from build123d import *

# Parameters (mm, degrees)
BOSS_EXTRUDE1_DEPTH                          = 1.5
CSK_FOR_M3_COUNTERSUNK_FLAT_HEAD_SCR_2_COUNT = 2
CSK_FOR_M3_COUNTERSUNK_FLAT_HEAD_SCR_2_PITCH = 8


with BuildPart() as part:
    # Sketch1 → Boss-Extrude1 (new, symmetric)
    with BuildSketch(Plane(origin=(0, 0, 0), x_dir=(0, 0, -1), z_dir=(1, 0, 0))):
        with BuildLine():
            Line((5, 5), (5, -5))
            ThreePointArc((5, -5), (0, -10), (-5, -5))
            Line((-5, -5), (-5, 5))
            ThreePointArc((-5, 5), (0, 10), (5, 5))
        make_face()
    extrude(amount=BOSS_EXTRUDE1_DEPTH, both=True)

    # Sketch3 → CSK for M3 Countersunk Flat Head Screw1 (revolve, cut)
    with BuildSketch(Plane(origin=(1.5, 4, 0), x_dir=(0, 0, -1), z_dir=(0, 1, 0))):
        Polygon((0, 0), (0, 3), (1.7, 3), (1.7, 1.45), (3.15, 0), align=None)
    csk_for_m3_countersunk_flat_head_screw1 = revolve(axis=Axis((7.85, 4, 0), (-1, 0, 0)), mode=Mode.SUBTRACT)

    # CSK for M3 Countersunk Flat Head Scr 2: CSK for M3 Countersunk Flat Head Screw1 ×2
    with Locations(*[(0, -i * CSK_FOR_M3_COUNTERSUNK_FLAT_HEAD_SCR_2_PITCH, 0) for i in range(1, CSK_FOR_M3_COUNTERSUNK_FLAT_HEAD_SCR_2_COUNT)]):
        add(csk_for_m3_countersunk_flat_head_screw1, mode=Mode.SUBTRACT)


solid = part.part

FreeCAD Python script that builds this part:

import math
import FreeCAD as App
import Part
import Sketcher
Q = App.Units.Quantity


def add_polygon(sketch, points):
    """Adds a closed chain of lines whose ends are joined by coincident constraints."""
    first, n = sketch.GeometryCount, len(points)
    for a, b in zip(points, points[1:] + points[:1]):
        sketch.addGeometry(Part.LineSegment(App.Vector(*a, 0), App.Vector(*b, 0)), False)
    for i in range(n):
        sketch.addConstraint(Sketcher.Constraint("Coincident", first + i, 2, first + (i + 1) % n, 1))

doc = App.newDocument("Part")
body = doc.addObject("PartDesign::Body", "Body")

sketch1 = body.newObject("Sketcher::SketchObject", "Sketch")
sketch1.AttachmentSupport = (doc.getObject("YZ_Plane"), [""])
sketch1.MapMode = "FlatFace"
sketch1.addGeometry([
    Part.LineSegment(App.Vector(-5, -5, 0), App.Vector(5, -5, 0)),
    Part.ArcOfCircle(Part.Circle(App.Vector(5, 0, 0), App.Vector(0, 0, 1), 5), math.radians(-90), math.radians(90)),
    Part.LineSegment(App.Vector(5, 5, 0), App.Vector(-5, 5, 0)),
    Part.ArcOfCircle(Part.Circle(App.Vector(-5, 0, 0), App.Vector(0, 0, 1), 5), math.radians(90), math.radians(270)),
], False)
sketch1.addConstraint([
    Sketcher.Constraint("Tangent", 0, 2, 1, 1),
    Sketcher.Constraint("Tangent", 1, 2, 2, 1),
    Sketcher.Constraint("Tangent", 2, 2, 3, 1),
    Sketcher.Constraint("Tangent", 3, 2, 0, 1),
    Sketcher.Constraint("Horizontal", 0),
    Sketcher.Constraint("Horizontal", 2),
    Sketcher.Constraint("Symmetric", 1, 3, 3, 3, -1, 1),
    Sketcher.Constraint("Radius", 1, Q("5 mm")),
    Sketcher.Constraint("DistanceX", 0, 1, 0, 2, Q("10 mm")),
])
pad1 = body.newObject("PartDesign::Pad", "Pad")
pad1.Profile = sketch1
pad1.Length = 3
pad1.Midplane = True

sketch2 = body.newObject("Sketcher::SketchObject", "Sketch001")
sketch2.AttachmentSupport = (doc.getObject("XZ_Plane"), [""])
sketch2.MapMode = "FlatFace"
sketch2.AttachmentOffset = App.Placement(App.Vector(0, 0, -4), App.Rotation())
add_polygon(sketch2, [(-1.5, 0), (1.5, 0), (1.5, -3.15), (0.05, -1.7), (-1.5, -1.7)])
sketch2.addConstraint([
    Sketcher.Constraint("Horizontal", 0),
    Sketcher.Constraint("Vertical", 1),
    Sketcher.Constraint("Horizontal", 3),
    Sketcher.Constraint("Vertical", 4),
    Sketcher.Constraint("Symmetric", 0, 2, 4, 2, -1, 1),
    Sketcher.Constraint("DistanceX", 0, 1, 0, 2, Q("3 mm")),
    Sketcher.Constraint("Angle", 2, Q("135 deg")),
    Sketcher.Constraint("DistanceY", 4, 1, 4, 2, Q("1.7 mm")),
    Sketcher.Constraint("DistanceX", 3, 2, 3, 1, Q("1.55 mm")),
])
groove = body.newObject("PartDesign::Groove", "Groove")
groove.Profile = sketch2
groove.ReferenceAxis = (sketch2, ["H_Axis"])
groove.Angle = 360
doc.recompute()

linearpattern = body.newObject("PartDesign::LinearPattern", "LinearPattern")
linearpattern.Originals = [groove]
linearpattern.Direction = (doc.getObject("Y_Axis"), [""])
linearpattern.Mode = "offset"
linearpattern.Offset = 8
linearpattern.Occurrences = 2
linearpattern.Reversed = True
body.Tip = linearpattern

doc.recompute()
